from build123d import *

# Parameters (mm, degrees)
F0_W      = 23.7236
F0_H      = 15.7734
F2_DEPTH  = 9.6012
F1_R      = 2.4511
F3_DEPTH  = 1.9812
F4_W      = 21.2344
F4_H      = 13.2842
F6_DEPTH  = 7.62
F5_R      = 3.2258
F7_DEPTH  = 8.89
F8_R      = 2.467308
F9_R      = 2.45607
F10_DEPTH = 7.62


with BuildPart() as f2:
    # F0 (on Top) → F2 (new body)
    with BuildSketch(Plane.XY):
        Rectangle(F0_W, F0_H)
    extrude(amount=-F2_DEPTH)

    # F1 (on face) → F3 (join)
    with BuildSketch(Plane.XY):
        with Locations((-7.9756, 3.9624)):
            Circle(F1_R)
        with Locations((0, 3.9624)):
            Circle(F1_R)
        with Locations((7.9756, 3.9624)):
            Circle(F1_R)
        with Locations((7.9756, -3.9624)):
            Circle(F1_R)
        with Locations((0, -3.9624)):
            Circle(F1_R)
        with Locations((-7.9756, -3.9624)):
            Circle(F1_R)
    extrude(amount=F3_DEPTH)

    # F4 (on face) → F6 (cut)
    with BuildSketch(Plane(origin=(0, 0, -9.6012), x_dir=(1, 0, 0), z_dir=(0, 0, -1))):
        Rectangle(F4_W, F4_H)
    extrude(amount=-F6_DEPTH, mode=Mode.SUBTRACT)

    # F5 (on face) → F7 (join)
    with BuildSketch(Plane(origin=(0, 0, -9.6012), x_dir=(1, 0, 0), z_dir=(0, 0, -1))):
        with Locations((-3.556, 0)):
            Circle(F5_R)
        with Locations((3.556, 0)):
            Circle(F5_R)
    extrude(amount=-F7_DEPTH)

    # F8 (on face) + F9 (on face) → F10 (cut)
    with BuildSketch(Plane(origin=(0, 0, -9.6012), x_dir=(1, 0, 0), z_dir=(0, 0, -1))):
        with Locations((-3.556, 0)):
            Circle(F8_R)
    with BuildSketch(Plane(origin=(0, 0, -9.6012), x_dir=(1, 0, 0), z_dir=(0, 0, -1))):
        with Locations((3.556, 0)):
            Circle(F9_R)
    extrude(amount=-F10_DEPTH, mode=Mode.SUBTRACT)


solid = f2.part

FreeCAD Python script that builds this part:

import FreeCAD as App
import Part
import Sketcher
Q = App.Units.Quantity


def add_polygon(sketch, points):
    """Adds a closed chain of lines whose ends are joined by coincident constraints."""
    first, n = sketch.GeometryCount, len(points)
    for a, b in zip(points, points[1:] + points[:1]):
        sketch.addGeometry(Part.LineSegment(App.Vector(*a, 0), App.Vector(*b, 0)), False)
    for i in range(n):
        sketch.addConstraint(Sketcher.Constraint("Coincident", first + i, 2, first + (i + 1) % n, 1))

doc = App.newDocument("Part")
params = doc.addObject("Spreadsheet::Sheet", "Params")
for row, (alias, value) in enumerate([
    ("sketch1_width", "0.934 in"),
    ("sketch1_height", "0.621 in"),
    ("pad1_length", "0.378 in"),
    ("sketch2_diameter", "0.193 in"),
    ("pad2_length", "0.078 in"),
    ("sketch3_width", "0.836 in"),
    ("sketch3_height", "0.523 in"),
    ("pocket1_length", "0.3 in"),
    ("sketch4_diameter", "0.254 in"),
    ("pad3_length", "0.35 in"),
    ("pocket2_length", "0.3 in"),
], start=1):
    params.set(f"A{row}", alias)
    params.set(f"B{row}", "=" + value)
    params.setAlias(f"B{row}", alias)

body = doc.addObject("PartDesign::Body", "Body")

sketch1 = body.newObject("Sketcher::SketchObject", "Sketch")
sketch1.AttachmentSupport = (doc.getObject("XY_Plane"), [""])
sketch1.MapMode = "FlatFace"
add_polygon(sketch1, [(-12, 8), (-12, -8), (12, -8), (12, 8)])
sketch1.addConstraint(Sketcher.Constraint("Vertical", 0))
sketch1.addConstraint(Sketcher.Constraint("Horizontal", 1))
sketch1.addConstraint(Sketcher.Constraint("Vertical", 2))
sketch1.addConstraint(Sketcher.Constraint("Horizontal", 3))
sketch1.addConstraint(Sketcher.Constraint("Symmetric", 0, 2, 2, 2, -1, 1))
sketch1.addConstraint(Sketcher.Constraint("DistanceX", 1, 1, 1, 2, Q("0.934 in")))
sketch1.addConstraint(Sketcher.Constraint("DistanceY", 0, 2, 0, 1, Q("0.621 in")))
sketch1.setExpression("Constraints[9]", "Params.sketch1_width")
sketch1.setExpression("Constraints[10]", "Params.sketch1_height")
pad1 = body.newObject("PartDesign::Pad", "Pad")
pad1.Profile = sketch1
pad1.setExpression("Length", "Params.pad1_length")
pad1.Reversed = True

sketch2 = body.newObject("Sketcher::SketchObject", "Sketch001")
sketch2.AttachmentSupport = (doc.getObject("XY_Plane"), [""])
sketch2.MapMode = "FlatFace"
sketch2.addGeometry(Part.Circle(App.Vector(-8, 4, 0), App.Vector(0, 0, 1), 2.5), False)
sketch2.addGeometry(Part.Circle(App.Vector(0, 4, 0), App.Vector(0, 0, 1), 2.5), False)
sketch2.addGeometry(Part.Circle(App.Vector(8, 4, 0), App.Vector(0, 0, 1), 2.5), False)
sketch2.addGeometry(Part.Circle(App.Vector(8, -4, 0), App.Vector(0, 0, 1), 2.5), False)
sketch2.addGeometry(Part.Circle(App.Vector(0, -4, 0), App.Vector(0, 0, 1), 2.5), False)
sketch2.addGeometry(Part.Circle(App.Vector(-8, -4, 0), App.Vector(0, 0, 1), 2.5), False)
sketch2.addConstraint(Sketcher.Constraint("Equal", 0, 1))
sketch2.addConstraint(Sketcher.Constraint("Equal", 1, 2))
sketch2.addConstraint(Sketcher.Constraint("Equal", 2, 3))
sketch2.addConstraint(Sketcher.Constraint("Equal", 3, 4))
sketch2.addConstraint(Sketcher.Constraint("Equal", 4, 5))
sketch2.addConstraint(Sketcher.Constraint("Symmetric", 0, 3, 3, 3, -1, 1))
sketch2.addConstraint(Sketcher.Constraint("Symmetric", 1, 3, 4, 3, -1, 1))
sketch2.addConstraint(Sketcher.Constraint("Symmetric", 2, 3, 5, 3, -1, 1))
sketch2.addConstraint(Sketcher.Constraint("Symmetric", 0, 3, 2, 3, -2))
sketch2.addConstraint(Sketcher.Constraint("PointOnObject", 1, 3, -2))
sketch2.addConstraint(Sketcher.Constraint("Horizontal", 0, 3, 1, 3))
sketch2.addConstraint(Sketcher.Constraint("Diameter", 0, Q("0.193 in")))
sketch2.addConstraint(Sketcher.Constraint("DistanceX", 0, 3, -1, 1, Q("0.314 in")))
sketch2.addConstraint(Sketcher.Constraint("DistanceY", -1, 1, 0, 3, Q("0.156 in")))
sketch2.setExpression("Constraints[11]", "Params.sketch2_diameter")
pad2 = body.newObject("PartDesign::Pad", "Pad001")
pad2.Profile = sketch2
pad2.setExpression("Length", "Params.pad2_length")

sketch3 = body.newObject("Sketcher::SketchObject", "Sketch002")
sketch3.AttachmentSupport = (doc.getObject("XY_Plane"), [""])
sketch3.MapMode = "FlatFace"
sketch3.AttachmentOffset = App.Placement(App.Vector(0, 0, -0.378 * 25.4), App.Rotation())
add_polygon(sketch3, [(-11, -7), (-11, 7), (11, 7), (11, -7)])
sketch3.addConstraint(Sketcher.Constraint("Vertical", 0))
sketch3.addConstraint(Sketcher.Constraint("Horizontal", 1))
sketch3.addConstraint(Sketcher.Constraint("Vertical", 2))
sketch3.addConstraint(Sketcher.Constraint("Horizontal", 3))
sketch3.addConstraint(Sketcher.Constraint("Symmetric", 0, 2, 2, 2, -1, 1))
sketch3.addConstraint(Sketcher.Constraint("DistanceX", 1, 1, 1, 2, Q("0.836 in")))
sketch3.addConstraint(Sketcher.Constraint("DistanceY", 0, 1, 0, 2, Q("0.523 in")))
sketch3.setExpression("Constraints[9]", "Params.sketch3_width")
sketch3.setExpression("Constraints[10]", "Params.sketch3_height")
pocket1 = body.newObject("PartDesign::Pocket", "Pocket")
pocket1.Profile = sketch3
pocket1.setExpression("Length", "Params.pocket1_length")
pocket1.Reversed = True

sketch4 = body.newObject("Sketcher::SketchObject", "Sketch003")
sketch4.AttachmentSupport = (doc.getObject("XY_Plane"), [""])
sketch4.MapMode = "FlatFace"
sketch4.AttachmentOffset = App.Placement(App.Vector(0, 0, -0.378 * 25.4), App.Rotation())
sketch4.addGeometry(Part.Circle(App.Vector(-3.6, 0, 0), App.Vector(0, 0, 1), 3.2), False)
sketch4.addGeometry(Part.Circle(App.Vector(3.6, 0, 0), App.Vector(0, 0, 1), 3.2), False)
sketch4.addConstraint(Sketcher.Constraint("Equal", 0, 1))
sketch4.addConstraint(Sketcher.Constraint("Symmetric", 0, 3, 1, 3, -1, 1))
sketch4.addConstraint(Sketcher.Constraint("PointOnObject", 0, 3, -1))
sketch4.addConstraint(Sketcher.Constraint("Diameter", 0, Q("0.254 in")))
sketch4.addConstraint(Sketcher.Constraint("DistanceX", 0, 3, -1, 1, Q("0.14 in")))
sketch4.setExpression("Constraints[3]", "Params.sketch4_diameter")
pad3 = body.newObject("PartDesign::Pad", "Pad002")
pad3.Profile = sketch4
pad3.setExpression("Length", "Params.pad3_length")

sketch5 = body.newObject("Sketcher::SketchObject", "Sketch004")
sketch5.AttachmentSupport = (doc.getObject("XY_Plane"), [""])
sketch5.MapMode = "FlatFace"
sketch5.AttachmentOffset = App.Placement(App.Vector(0, 0, -0.378 * 25.4), App.Rotation())
sketch5.addGeometry(Part.Circle(App.Vector(-3.6, 0, 0), App.Vector(0, 0, 1), 2.5), False)
sketch5.addGeometry(Part.Circle(App.Vector(3.6, 0, 0), App.Vector(0, 0, 1), 2.5), False)
sketch5.addConstraint(Sketcher.Constraint("Symmetric", 0, 3, 1, 3, -1, 1))
sketch5.addConstraint(Sketcher.Constraint("PointOnObject", 0, 3, -1))
sketch5.addConstraint(Sketcher.Constraint("DistanceX", 0, 3, -1, 1, Q("0.14 in")))
sketch5.addConstraint(Sketcher.Constraint("Diameter", 1, Q("4.91214 mm")))
sketch5.addConstraint(Sketcher.Constraint("Diameter", 0, Q("4.934616 mm")))
pocket2 = body.newObject("PartDesign::Pocket", "Pocket001")
pocket2.Profile = sketch5
pocket2.setExpression("Length", "Params.pocket2_length")
pocket2.Reversed = True

doc.recompute()
